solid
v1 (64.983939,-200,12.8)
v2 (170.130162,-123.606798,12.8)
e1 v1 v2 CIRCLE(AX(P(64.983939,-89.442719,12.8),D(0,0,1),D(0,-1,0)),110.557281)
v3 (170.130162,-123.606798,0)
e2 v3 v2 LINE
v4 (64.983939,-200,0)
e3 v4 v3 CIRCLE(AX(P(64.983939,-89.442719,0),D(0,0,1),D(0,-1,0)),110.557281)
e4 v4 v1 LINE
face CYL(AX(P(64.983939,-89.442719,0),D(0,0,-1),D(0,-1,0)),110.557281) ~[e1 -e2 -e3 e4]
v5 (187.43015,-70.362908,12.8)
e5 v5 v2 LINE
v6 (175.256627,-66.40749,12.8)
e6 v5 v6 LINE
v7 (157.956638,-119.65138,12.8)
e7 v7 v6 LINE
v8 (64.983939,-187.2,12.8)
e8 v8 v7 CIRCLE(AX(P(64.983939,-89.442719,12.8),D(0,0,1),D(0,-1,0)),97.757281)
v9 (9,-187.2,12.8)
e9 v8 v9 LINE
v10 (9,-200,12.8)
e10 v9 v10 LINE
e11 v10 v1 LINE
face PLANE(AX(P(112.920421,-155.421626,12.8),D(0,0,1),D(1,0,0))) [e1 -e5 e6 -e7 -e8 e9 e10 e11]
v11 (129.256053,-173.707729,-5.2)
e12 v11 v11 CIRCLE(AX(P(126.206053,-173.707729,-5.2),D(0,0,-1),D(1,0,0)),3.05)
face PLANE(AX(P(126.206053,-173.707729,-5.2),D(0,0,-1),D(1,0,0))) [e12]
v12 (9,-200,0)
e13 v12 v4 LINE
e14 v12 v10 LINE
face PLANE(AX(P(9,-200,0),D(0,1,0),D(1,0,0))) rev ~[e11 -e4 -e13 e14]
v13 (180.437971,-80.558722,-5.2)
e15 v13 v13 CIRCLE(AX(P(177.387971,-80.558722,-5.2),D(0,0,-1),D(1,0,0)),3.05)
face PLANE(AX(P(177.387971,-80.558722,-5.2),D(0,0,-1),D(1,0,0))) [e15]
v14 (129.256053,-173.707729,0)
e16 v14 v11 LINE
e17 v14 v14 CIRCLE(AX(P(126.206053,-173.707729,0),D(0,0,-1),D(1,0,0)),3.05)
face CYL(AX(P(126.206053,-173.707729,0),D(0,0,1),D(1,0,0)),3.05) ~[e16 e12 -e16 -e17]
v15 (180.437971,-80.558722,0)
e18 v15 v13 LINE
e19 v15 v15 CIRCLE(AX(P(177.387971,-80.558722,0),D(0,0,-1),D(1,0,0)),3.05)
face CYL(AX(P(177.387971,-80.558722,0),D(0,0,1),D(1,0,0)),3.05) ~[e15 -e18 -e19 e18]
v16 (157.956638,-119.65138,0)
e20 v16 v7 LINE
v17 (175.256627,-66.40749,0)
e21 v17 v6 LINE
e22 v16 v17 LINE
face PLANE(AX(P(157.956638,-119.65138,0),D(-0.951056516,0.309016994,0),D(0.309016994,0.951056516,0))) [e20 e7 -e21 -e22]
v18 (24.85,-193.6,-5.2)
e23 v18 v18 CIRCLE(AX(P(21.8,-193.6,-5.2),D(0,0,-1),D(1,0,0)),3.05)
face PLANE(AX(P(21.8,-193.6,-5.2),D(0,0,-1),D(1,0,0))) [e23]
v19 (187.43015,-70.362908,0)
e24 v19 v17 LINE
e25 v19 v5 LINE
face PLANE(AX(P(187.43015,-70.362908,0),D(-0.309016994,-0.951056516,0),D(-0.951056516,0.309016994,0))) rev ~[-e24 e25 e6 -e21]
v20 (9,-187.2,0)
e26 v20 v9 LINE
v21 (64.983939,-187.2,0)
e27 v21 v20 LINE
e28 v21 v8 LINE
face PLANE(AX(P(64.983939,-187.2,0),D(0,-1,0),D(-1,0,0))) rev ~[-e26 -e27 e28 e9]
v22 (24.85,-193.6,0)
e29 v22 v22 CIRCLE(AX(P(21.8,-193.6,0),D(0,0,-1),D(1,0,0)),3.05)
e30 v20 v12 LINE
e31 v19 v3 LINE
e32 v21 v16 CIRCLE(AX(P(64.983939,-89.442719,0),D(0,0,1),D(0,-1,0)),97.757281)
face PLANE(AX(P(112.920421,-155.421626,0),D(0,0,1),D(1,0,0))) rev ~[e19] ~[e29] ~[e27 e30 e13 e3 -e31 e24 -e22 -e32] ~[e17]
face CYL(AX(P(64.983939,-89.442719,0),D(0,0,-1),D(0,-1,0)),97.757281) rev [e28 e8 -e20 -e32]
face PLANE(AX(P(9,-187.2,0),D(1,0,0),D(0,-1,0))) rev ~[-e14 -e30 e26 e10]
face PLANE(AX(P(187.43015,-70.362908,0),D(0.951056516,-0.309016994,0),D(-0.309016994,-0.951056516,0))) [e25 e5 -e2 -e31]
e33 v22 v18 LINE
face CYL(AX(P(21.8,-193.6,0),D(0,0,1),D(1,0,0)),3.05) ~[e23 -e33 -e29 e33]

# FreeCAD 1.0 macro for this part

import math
import FreeCAD as App
import Part
import Sketcher
from FreeCAD import Vector
Q = App.Units.Quantity

doc = App.newDocument("Part")
body = doc.addObject("PartDesign::Body", "Body")

sketch1 = body.newObject("Sketcher::SketchObject", "Sketch")
sketch1.AttachmentSupport = (doc.getObject("XY_Plane"), [""])
sketch1.MapMode = "FlatFace"
sketch1.addGeometry(Part.LineSegment(Vector(64.983939, -187.2, 0), Vector(9, -187.2, 0)), False)
sketch1.addGeometry(Part.LineSegment(Vector(9, -187.2, 0), Vector(9, -200, 0)), False)
sketch1.addGeometry(Part.LineSegment(Vector(9, -200, 0), Vector(64.983939, -200, 0)), False)
sketch1.addGeometry(Part.ArcOfCircle(Part.Circle(Vector(64.983939, -89.442719, 0), Vector(0, 0, 1), 110.557281), math.radians(-90), math.radians(-18)), False)
sketch1.addGeometry(Part.LineSegment(Vector(170.130162, -123.606798, 0), Vector(187.43015, -70.362908, 0)), False)
sketch1.addGeometry(Part.LineSegment(Vector(187.43015, -70.362908, 0), Vector(175.256627, -66.40749, 0)), False)
sketch1.addGeometry(Part.LineSegment(Vector(175.256627, -66.40749, 0), Vector(157.956638, -119.65138, 0)), False)
sketch1.addGeometry(Part.ArcOfCircle(Part.Circle(Vector(64.983939, -89.442719, 0), Vector(0, 0, 1), 97.757281), math.radians(-90), math.radians(-18)), False)
sketch1.addConstraint(Sketcher.Constraint("Coincident", 0, 2, 1, 1))
sketch1.addConstraint(Sketcher.Constraint("Coincident", 1, 2, 2, 1))
sketch1.addConstraint(Sketcher.Constraint("Tangent", 2, 2, 3, 1))
sketch1.addConstraint(Sketcher.Constraint("Tangent", 3, 2, 4, 1))
sketch1.addConstraint(Sketcher.Constraint("Coincident", 4, 2, 5, 1))
sketch1.addConstraint(Sketcher.Constraint("Coincident", 5, 2, 6, 1))
sketch1.addConstraint(Sketcher.Constraint("Tangent", 6, 2, 7, 2))
sketch1.addConstraint(Sketcher.Constraint("Tangent", 7, 1, 0, 1))
sketch1.addConstraint(Sketcher.Constraint("Horizontal", 0))
sketch1.addConstraint(Sketcher.Constraint("Vertical", 1))
sketch1.addConstraint(Sketcher.Constraint("Horizontal", 2))
sketch1.addConstraint(Sketcher.Constraint("Coincident", 7, 3, 3, 3))
sketch1.addConstraint(Sketcher.Constraint("Perpendicular", 4, 5))
sketch1.addConstraint(Sketcher.Constraint("Perpendicular", 5, 6))
sketch1.addConstraint(Sketcher.Constraint("Angle", 4, Q("72 deg")))
sketch1.addConstraint(Sketcher.Constraint("DistanceY", 1, 2, 1, 1, Q("12.8 mm")))
sketch1.addConstraint(Sketcher.Constraint("DistanceX", -1, 1, 0, 2, Q("9 mm")))
sketch1.addConstraint(Sketcher.Constraint("DistanceY", 1, 2, -1, 1, Q("200 mm")))
sketch1.addConstraint(Sketcher.Constraint("Radius", 3, Q("110.557281 mm")))
sketch1.addConstraint(Sketcher.Constraint("DistanceX", 0, 2, 0, 1, Q("55.983939 mm")))
sketch1.addConstraint(Sketcher.Constraint("Distance", 4, Q("55.983939 mm")))
pad1 = body.newObject("PartDesign::Pad", "Pad")
pad1.Profile = sketch1
pad1.Length = 12.8

sketch2 = body.newObject("Sketcher::SketchObject", "Sketch001")
sketch2.AttachmentSupport = (doc.getObject("XY_Plane"), [""])
sketch2.MapMode = "FlatFace"
sketch2.addGeometry(Part.Circle(Vector(21.8, -193.6, 0), Vector(0, 0, 1), 3.05), False)
sketch2.addConstraint(Sketcher.Constraint("Diameter", 0, Q("6.1 mm")))
sketch2.addConstraint(Sketcher.Constraint("DistanceX", -1, 1, 0, 3, Q("21.8 mm")))
sketch2.addConstraint(Sketcher.Constraint("DistanceY", 0, 3, -1, 1, Q("193.6 mm")))
pad2 = body.newObject("PartDesign::Pad", "Pad001")
pad2.Profile = sketch2
pad2.Length = 5.2
pad2.Reversed = True

sketch3 = body.newObject("Sketcher::SketchObject", "Sketch002")
sketch3.AttachmentSupport = (doc.getObject("XY_Plane"), [""])
sketch3.MapMode = "FlatFace"
sketch3.addGeometry(Part.Circle(Vector(126.206053, -173.707729, 0), Vector(0, 0, 1), 3.05), False)
sketch3.addConstraint(Sketcher.Constraint("Diameter", 0, Q("6.1 mm")))
sketch3.addConstraint(Sketcher.Constraint("DistanceY", 0, 3, -1, 1, Q("173.707729 mm")))
sketch3.addConstraint(Sketcher.Constraint("DistanceX", -1, 1, 0, 3, Q("126.206053 mm")))
pad3 = body.newObject("PartDesign::Pad", "Pad002")
pad3.Profile = sketch3
pad3.Length = 5.2
pad3.Reversed = True

sketch4 = body.newObject("Sketcher::SketchObject", "Sketch003")
sketch4.AttachmentSupport = (doc.getObject("XY_Plane"), [""])
sketch4.MapMode = "FlatFace"
sketch4.addGeometry(Part.Circle(Vector(177.387971, -80.558722, 0), Vector(0, 0, 1), 3.05), False)
sketch4.addConstraint(Sketcher.Constraint("Diameter", 0, Q("6.1 mm")))
sketch4.addConstraint(Sketcher.Constraint("DistanceX", -1, 1, 0, 3, Q("177.387971 mm")))
sketch4.addConstraint(Sketcher.Constraint("DistanceY", 0, 3, -1, 1, Q("80.558722 mm")))
pad4 = body.newObject("PartDesign::Pad", "Pad003")
pad4.Profile = sketch4
pad4.Length = 5.2
pad4.Reversed = True

doc.recompute()
